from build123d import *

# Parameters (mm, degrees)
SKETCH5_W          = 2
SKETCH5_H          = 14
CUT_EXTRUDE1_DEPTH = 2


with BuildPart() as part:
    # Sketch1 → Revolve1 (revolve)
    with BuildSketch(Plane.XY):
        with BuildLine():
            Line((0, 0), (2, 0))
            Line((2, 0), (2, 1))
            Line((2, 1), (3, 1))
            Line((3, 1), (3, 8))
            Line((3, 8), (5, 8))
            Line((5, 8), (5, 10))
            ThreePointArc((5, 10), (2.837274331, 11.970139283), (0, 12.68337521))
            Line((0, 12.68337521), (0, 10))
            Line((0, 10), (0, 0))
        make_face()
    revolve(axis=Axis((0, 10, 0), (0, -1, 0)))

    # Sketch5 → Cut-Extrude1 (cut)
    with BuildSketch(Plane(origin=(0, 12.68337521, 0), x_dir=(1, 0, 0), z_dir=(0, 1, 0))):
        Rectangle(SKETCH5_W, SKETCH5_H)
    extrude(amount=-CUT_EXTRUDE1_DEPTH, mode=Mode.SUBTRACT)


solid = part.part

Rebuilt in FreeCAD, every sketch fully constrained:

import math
import FreeCAD as App
import Part
import Sketcher
from FreeCAD import Vector


def add_polygon(sketch, points):
    """Adds a closed chain of lines whose ends are joined by coincident constraints."""
    first, n = sketch.GeometryCount, len(points)
    for a, b in zip(points, points[1:] + points[:1]):
        sketch.addGeometry(Part.LineSegment(App.Vector(*a, 0), App.Vector(*b, 0)), False)
    for i in range(n):
        sketch.addConstraint(Sketcher.Constraint("Coincident", first + i, 2, first + (i + 1) % n, 1))

doc = App.newDocument("Part")
params = doc.addObject("Spreadsheet::Sheet", "Params")
for row, (alias, value) in enumerate([
    ("sketch1_radius", "6 mm"),
    ("sketch1_width", "2 mm"),
    ("sketch1_width2", "1 mm"),
    ("sketch1_height", "7 mm"),
    ("revolution_angle", "360 deg"),
    ("sketch2_width", "2 mm"),
    ("sketch2_height", "14 mm"),
    ("pocket1_length", "2 mm"),
], start=1):
    params.set(f"A{row}", alias)
    params.set(f"B{row}", "=" + value)
    params.setAlias(f"B{row}", alias)

body = doc.addObject("PartDesign::Body", "Body")

# Sketch on XY plane
sketch1 = body.newObject("Sketcher::SketchObject", "Sketch")
sketch1.AttachmentSupport = (doc.getObject("XY_Plane"), [""])
sketch1.MapMode = "FlatFace"
sketch1.addGeometry([
    Part.LineSegment(Vector(0, 0, 0), Vector(2, 0, 0)),  # 0
    Part.LineSegment(Vector(2, 0, 0), Vector(2, 1, 0)),  # 1
    Part.LineSegment(Vector(2, 1, 0), Vector(3, 1, 0)),  # 2
    Part.LineSegment(Vector(3, 1, 0), Vector(3, 8, 0)),  # 3
    Part.LineSegment(Vector(3, 8, 0), Vector(5, 8, 0)),  # 4
    Part.LineSegment(Vector(5, 8, 0), Vector(5, 10, 0)),  # 5
    Part.ArcOfCircle(Part.Circle(Vector(0, 6.7, 0), Vector(0, 0, 1), 6), math.radians(34), math.radians(90)),  # 6
    Part.LineSegment(Vector(0, 12.7, 0), Vector(0, 0, 0)),  # 7
], False)
sketch1.addConstraint([
    Sketcher.Constraint("Coincident", 0, 2, 1, 1),
    Sketcher.Constraint("Coincident", 1, 2, 2, 1),
    Sketcher.Constraint("Coincident", 2, 2, 3, 1),
    Sketcher.Constraint("Coincident", 3, 2, 4, 1),
    Sketcher.Constraint("Coincident", 4, 2, 5, 1),
    Sketcher.Constraint("Coincident", 5, 2, 6, 1),
    Sketcher.Constraint("Coincident", 6, 2, 7, 1),
    Sketcher.Constraint("Coincident", 7, 2, 0, 1),
    Sketcher.Constraint("Horizontal", 0),
    Sketcher.Constraint("Vertical", 1),
    Sketcher.Constraint("Horizontal", 2),
    Sketcher.Constraint("Vertical", 3),
    Sketcher.Constraint("Horizontal", 4),
    Sketcher.Constraint("Vertical", 5),
    Sketcher.Constraint("Vertical", 7),
    Sketcher.Constraint("Coincident", 7, 2, -1, 1),
    Sketcher.Constraint("PointOnObject", 6, 3, -2),
    Sketcher.Constraint("Equal", 0, 4),
    Sketcher.Constraint("Equal", 2, 1),
    Sketcher.Constraint("Equal", 4, 5),
    Sketcher.Constraint("Radius", 6, 6.0),
    Sketcher.Constraint("DistanceX", 0, 1, 0, 2, 2.0),
    Sketcher.Constraint("DistanceX", 2, 1, 2, 2, 1.0),
    Sketcher.Constraint("DistanceY", 3, 1, 3, 2, 7.0),
])
sketch1.setExpression("Constraints[20]", "Params.sketch1_radius")
sketch1.setExpression("Constraints[21]", "Params.sketch1_width")
sketch1.setExpression("Constraints[22]", "Params.sketch1_width2")
sketch1.setExpression("Constraints[23]", "Params.sketch1_height")
revolution = body.newObject("PartDesign::Revolution", "Revolution")
revolution.Profile = sketch1
revolution.ReferenceAxis = (sketch1, ["V_Axis"])
revolution.setExpression("Angle", "Params.revolution_angle")

# Sketch on XZ plane
sketch2 = body.newObject("Sketcher::SketchObject", "Sketch001")
sketch2.AttachmentSupport = (doc.getObject("XZ_Plane"), [""])
sketch2.MapMode = "FlatFace"
sketch2.AttachmentOffset = App.Placement(Vector(0, 0, -12.683375), App.Rotation())
add_polygon(sketch2, [(-1, -7), (-1, 7), (1, 7), (1, -7)])  # lines 0-3
sketch2.addConstraint([
    Sketcher.Constraint("Vertical", 0),
    Sketcher.Constraint("Horizontal", 1),
    Sketcher.Constraint("Vertical", 2),
    Sketcher.Constraint("Horizontal", 3),
    Sketcher.Constraint("Symmetric", 0, 2, 2, 2, -1, 1),
    Sketcher.Constraint("DistanceX", 1, 1, 1, 2, 2.0),
    Sketcher.Constraint("DistanceY", 0, 1, 0, 2, 14.0),
])
sketch2.setExpression("Constraints[9]", "Params.sketch2_width")
sketch2.setExpression("Constraints[10]", "Params.sketch2_height")
pocket1 = body.newObject("PartDesign::Pocket", "Pocket")
pocket1.Profile = sketch2
pocket1.setExpression("Length", "Params.pocket1_length")
pocket1.Reversed = True

doc.recompute()
